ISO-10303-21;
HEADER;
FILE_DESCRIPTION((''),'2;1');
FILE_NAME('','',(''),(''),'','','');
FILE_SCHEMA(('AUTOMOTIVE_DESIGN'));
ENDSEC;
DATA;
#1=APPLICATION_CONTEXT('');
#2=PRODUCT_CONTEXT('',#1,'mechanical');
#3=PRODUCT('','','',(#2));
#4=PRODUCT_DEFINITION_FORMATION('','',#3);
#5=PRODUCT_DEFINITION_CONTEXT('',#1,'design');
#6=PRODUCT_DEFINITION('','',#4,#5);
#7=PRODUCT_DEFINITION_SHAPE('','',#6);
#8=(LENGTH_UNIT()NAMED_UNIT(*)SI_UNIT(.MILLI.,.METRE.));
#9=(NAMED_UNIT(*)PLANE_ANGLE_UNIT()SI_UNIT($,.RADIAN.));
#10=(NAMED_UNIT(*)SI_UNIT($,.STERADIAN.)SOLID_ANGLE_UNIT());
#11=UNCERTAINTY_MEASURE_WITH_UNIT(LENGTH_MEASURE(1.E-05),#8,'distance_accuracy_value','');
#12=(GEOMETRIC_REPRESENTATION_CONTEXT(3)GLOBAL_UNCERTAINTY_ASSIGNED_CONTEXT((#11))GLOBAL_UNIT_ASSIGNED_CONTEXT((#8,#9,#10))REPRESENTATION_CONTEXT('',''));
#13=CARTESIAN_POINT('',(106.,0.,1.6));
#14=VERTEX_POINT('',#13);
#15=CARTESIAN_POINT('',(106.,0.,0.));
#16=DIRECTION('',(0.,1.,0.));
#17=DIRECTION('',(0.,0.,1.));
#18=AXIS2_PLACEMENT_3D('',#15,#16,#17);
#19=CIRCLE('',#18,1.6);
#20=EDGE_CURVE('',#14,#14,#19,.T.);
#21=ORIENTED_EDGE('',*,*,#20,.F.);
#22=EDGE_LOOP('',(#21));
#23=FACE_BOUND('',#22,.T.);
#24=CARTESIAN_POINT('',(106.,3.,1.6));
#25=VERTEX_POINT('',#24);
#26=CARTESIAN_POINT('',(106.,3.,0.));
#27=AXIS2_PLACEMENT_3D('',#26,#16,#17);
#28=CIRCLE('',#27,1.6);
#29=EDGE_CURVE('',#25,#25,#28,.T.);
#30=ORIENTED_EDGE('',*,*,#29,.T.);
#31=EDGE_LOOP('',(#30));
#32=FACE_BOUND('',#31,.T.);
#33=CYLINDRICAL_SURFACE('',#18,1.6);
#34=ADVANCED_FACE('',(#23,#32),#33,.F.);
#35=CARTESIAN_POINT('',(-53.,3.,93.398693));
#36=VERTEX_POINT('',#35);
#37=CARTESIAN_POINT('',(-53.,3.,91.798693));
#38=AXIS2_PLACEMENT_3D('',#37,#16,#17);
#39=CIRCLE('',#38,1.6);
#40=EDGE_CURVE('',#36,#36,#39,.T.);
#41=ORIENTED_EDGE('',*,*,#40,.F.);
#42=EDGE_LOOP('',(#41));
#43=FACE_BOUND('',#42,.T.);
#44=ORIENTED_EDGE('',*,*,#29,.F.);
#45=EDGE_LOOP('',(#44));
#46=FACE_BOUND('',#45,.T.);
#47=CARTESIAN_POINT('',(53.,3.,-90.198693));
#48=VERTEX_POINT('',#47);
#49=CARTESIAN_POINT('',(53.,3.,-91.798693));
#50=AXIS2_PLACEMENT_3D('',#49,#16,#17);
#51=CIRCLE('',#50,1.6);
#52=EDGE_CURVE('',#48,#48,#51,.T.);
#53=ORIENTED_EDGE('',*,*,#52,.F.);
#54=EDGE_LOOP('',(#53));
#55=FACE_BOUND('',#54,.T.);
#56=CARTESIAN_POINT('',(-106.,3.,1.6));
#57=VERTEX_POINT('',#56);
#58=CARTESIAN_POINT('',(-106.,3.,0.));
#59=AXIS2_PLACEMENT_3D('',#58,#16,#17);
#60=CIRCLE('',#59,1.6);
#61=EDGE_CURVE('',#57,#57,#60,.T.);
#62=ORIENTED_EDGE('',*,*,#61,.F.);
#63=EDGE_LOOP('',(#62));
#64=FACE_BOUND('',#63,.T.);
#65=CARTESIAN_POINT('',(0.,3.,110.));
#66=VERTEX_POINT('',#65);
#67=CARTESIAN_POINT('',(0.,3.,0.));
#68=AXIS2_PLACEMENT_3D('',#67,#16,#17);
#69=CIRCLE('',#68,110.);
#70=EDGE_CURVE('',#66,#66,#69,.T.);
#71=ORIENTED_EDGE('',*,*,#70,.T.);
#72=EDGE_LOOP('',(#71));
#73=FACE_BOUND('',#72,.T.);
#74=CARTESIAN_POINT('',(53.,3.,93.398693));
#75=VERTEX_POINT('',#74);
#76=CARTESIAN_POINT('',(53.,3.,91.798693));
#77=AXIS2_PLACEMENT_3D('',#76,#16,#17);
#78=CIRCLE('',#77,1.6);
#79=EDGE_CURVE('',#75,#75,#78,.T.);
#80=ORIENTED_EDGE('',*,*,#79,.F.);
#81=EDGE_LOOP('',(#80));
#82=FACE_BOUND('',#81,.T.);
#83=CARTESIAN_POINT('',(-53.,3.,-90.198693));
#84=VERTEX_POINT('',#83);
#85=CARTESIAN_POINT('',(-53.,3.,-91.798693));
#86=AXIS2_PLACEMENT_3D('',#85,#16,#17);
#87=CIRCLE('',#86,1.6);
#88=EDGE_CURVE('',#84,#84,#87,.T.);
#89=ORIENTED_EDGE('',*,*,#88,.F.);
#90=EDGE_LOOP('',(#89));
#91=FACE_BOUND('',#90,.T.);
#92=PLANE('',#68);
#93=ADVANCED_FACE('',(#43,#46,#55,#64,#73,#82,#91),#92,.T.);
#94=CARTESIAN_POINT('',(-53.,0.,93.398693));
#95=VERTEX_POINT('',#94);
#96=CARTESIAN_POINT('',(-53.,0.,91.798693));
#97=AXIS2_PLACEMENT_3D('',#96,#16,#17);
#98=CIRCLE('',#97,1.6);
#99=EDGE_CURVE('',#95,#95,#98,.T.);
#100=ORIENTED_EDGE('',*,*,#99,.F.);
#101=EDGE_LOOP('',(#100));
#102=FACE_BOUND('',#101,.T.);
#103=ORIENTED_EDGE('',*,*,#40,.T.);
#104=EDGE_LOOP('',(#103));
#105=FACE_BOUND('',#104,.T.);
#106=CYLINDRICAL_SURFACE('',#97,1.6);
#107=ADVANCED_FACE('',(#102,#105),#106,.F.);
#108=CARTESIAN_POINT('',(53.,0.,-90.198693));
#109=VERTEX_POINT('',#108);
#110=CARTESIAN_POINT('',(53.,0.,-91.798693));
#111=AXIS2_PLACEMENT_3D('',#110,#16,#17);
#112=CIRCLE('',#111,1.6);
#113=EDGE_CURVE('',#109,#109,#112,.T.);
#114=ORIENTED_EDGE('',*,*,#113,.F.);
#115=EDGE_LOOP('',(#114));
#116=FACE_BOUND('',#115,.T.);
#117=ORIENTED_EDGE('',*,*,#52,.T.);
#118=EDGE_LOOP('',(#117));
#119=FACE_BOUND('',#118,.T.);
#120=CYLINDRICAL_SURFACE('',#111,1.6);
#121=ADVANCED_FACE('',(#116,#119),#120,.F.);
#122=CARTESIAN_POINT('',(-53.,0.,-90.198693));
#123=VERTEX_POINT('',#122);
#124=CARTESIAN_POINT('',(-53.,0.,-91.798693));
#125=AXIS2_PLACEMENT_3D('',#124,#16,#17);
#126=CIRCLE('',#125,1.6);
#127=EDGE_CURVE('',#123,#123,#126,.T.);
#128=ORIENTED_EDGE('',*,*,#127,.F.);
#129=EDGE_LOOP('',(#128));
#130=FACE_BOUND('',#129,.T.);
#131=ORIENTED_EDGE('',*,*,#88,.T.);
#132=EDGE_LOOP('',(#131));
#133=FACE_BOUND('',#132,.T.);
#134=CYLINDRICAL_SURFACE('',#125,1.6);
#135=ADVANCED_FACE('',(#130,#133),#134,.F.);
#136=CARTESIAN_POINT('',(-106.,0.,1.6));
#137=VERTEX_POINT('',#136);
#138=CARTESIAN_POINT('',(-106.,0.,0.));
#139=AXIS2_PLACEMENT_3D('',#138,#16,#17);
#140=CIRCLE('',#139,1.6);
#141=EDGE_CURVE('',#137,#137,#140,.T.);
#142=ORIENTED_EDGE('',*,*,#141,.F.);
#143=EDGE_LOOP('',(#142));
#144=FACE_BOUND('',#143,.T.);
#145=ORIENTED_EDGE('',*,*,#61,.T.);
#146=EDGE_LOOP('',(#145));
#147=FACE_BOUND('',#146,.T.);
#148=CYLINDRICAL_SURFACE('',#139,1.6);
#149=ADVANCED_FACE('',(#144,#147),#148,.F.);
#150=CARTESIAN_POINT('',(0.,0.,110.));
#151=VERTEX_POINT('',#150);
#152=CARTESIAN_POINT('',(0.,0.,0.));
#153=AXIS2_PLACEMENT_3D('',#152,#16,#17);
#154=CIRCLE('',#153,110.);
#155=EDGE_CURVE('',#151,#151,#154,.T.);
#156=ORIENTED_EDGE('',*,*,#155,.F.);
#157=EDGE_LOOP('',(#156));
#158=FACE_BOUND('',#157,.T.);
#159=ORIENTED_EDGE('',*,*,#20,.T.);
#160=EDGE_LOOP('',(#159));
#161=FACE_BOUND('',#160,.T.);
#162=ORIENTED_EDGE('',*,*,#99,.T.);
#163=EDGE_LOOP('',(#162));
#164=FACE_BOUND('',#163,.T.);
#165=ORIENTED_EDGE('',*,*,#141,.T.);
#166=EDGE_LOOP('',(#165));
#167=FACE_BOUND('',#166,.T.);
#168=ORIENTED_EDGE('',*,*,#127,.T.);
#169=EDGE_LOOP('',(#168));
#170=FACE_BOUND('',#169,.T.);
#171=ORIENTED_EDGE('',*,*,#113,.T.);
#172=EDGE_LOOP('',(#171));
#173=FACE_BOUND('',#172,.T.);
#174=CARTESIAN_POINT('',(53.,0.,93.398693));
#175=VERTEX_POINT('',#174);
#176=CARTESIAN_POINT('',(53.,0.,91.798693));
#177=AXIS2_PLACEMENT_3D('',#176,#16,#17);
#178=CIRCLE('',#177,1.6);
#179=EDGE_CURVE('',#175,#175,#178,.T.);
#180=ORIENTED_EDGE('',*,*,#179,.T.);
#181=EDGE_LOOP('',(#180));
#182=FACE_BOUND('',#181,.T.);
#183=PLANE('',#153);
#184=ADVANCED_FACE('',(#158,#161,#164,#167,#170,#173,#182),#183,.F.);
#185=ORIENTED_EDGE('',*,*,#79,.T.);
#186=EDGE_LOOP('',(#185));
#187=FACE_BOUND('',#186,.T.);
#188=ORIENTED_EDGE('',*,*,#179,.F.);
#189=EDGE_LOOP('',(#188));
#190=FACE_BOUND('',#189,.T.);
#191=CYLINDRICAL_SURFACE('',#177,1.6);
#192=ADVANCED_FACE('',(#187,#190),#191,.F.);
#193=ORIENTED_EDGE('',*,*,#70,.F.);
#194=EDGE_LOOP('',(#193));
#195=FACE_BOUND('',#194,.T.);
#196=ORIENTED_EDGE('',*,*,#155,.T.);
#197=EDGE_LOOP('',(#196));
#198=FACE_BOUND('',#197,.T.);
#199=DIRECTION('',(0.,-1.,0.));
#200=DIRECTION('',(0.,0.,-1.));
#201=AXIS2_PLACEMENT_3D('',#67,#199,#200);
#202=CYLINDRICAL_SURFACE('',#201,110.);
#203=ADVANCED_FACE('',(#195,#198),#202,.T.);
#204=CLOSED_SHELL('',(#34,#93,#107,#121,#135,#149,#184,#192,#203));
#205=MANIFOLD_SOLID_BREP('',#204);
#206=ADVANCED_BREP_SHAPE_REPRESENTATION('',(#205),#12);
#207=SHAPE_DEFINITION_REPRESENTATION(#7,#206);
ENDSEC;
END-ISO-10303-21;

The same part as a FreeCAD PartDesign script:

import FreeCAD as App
import Part
import Sketcher

V = App.Vector

doc = App.newDocument("Part")
params = doc.addObject("Spreadsheet::Sheet", "Params")
for row, (alias, value) in enumerate([
    ("sketch1_diameter", "220 mm"),
    ("pad1_length", "3 mm"),
    ("sketch2_diameter", "3.2 mm"),
    ("pocket1_length", "3 mm"),
], start=1):
    params.set(f"A{row}", alias)
    params.set(f"B{row}", "=" + value)
    params.setAlias(f"B{row}", alias)

body = doc.addObject("PartDesign::Body", "Body")

sketch1 = doc.addObject("Sketcher::SketchObject", "Sketch")
body.addObject(sketch1)
sketch1.AttachmentSupport = (doc.XZ_Plane, [""])
sketch1.MapMode = "FlatFace"
sketch1.addGeometry(Part.Circle(V(0, 0, 0), V(0, 0, 1), 110), False)
sketch1.addConstraint([
    Sketcher.Constraint("Coincident", 0, 3, -1, 1),
    Sketcher.Constraint("Diameter", 0, 220.0),
])
sketch1.setExpression("Constraints[1]", "Params.sketch1_diameter")
pad1 = doc.addObject("PartDesign::Pad", "Pad")
body.addObject(pad1)
pad1.Profile = sketch1
pad1.setExpression("Length", "Params.pad1_length")
pad1.Reversed = True

sketch2 = doc.addObject("Sketcher::SketchObject", "Sketch001")
body.addObject(sketch2)
sketch2.AttachmentSupport = (doc.XZ_Plane, [""])
sketch2.MapMode = "FlatFace"
sketch2.AttachmentOffset = App.Placement(V(0, 0, -3), App.Rotation())
sketch2.addGeometry([
    Part.Circle(V(53, -91.798693, 0), V(0, 0, 1), 1.6),
    Part.Circle(V(106, 0, 0), V(0, 0, 1), 1.6),
    Part.Circle(V(53, 91.798693, 0), V(0, 0, 1), 1.6),
    Part.Circle(V(-53, 91.798693, 0), V(0, 0, 1), 1.6),
    Part.Circle(V(-106, 0, 0), V(0, 0, 1), 1.6),
    Part.Circle(V(-53, -91.798693, 0), V(0, 0, 1), 1.6),
], False)
sketch2.addConstraint([
    Sketcher.Constraint("Equal", 0, 1),
    Sketcher.Constraint("Equal", 1, 2),
    Sketcher.Constraint("Equal", 2, 3),
    Sketcher.Constraint("Equal", 3, 4),
    Sketcher.Constraint("Equal", 4, 5),
    Sketcher.Constraint("Symmetric", 0, 3, 3, 3, -1, 1),
    Sketcher.Constraint("Symmetric", 1, 3, 4, 3, -1, 1),
    Sketcher.Constraint("Symmetric", 2, 3, 5, 3, -1, 1),
    Sketcher.Constraint("Symmetric", 2, 3, 3, 3, -2),
    Sketcher.Constraint("PointOnObject", 1, 3, -1),
    Sketcher.Constraint("Diameter", 0, 3.2),
    Sketcher.Constraint("DistanceX", -1, 1, 0, 3, 53.0),
    Sketcher.Constraint("DistanceX", -1, 1, 1, 3, 106.0),
    Sketcher.Constraint("DistanceY", 0, 3, -1, 1, 91.798693),
])
sketch2.setExpression("Constraints[10]", "Params.sketch2_diameter")
pocket1 = doc.addObject("PartDesign::Pocket", "Pocket")
body.addObject(pocket1)
pocket1.Profile = sketch2
pocket1.setExpression("Length", "Params.pocket1_length")
pocket1.Reversed = True

doc.recompute()
